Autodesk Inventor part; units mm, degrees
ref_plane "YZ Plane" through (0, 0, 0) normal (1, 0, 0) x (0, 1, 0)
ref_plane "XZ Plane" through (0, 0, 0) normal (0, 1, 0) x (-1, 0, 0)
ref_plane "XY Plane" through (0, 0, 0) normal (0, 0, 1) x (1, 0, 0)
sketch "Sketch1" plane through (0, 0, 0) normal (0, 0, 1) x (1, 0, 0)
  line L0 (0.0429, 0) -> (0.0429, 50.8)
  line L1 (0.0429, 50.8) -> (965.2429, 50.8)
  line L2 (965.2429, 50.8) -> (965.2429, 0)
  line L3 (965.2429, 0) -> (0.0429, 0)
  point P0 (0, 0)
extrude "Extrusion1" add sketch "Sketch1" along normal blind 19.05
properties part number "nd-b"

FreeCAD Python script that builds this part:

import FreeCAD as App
import Part
import Sketcher
Q = App.Units.Quantity

doc = App.newDocument("Part")
body = doc.addObject("PartDesign::Body", "Body")

# Sketch on XY plane
sketch1 = doc.addObject("Sketcher::SketchObject", "Sketch")
body.addObject(sketch1)
sketch1.AttachmentSupport = (doc.XY_Plane, [""])
sketch1.MapMode = "FlatFace"
sketch1.addGeometry(Part.LineSegment(App.Vector(0, 51, 0), App.Vector(0, 0, 0)), False)
sketch1.addGeometry(Part.LineSegment(App.Vector(0, 0, 0), App.Vector(965, 0, 0)), False)
sketch1.addGeometry(Part.LineSegment(App.Vector(965, 0, 0), App.Vector(965, 51, 0)), False)
sketch1.addGeometry(Part.LineSegment(App.Vector(965, 51, 0), App.Vector(0, 51, 0)), False)
sketch1.addConstraint(Sketcher.Constraint("Coincident", 0, 2, 1, 1))
sketch1.addConstraint(Sketcher.Constraint("Coincident", 1, 2, 2, 1))
sketch1.addConstraint(Sketcher.Constraint("Coincident", 2, 2, 3, 1))
sketch1.addConstraint(Sketcher.Constraint("Coincident", 3, 2, 0, 1))
sketch1.addConstraint(Sketcher.Constraint("Vertical", 0))
sketch1.addConstraint(Sketcher.Constraint("Horizontal", 1))
sketch1.addConstraint(Sketcher.Constraint("Vertical", 2))
sketch1.addConstraint(Sketcher.Constraint("Horizontal", 3))
sketch1.addConstraint(Sketcher.Constraint("PointOnObject", 0, 2, -1))
sketch1.addConstraint(Sketcher.Constraint("DistanceX", 1, 1, 1, 2, Q("38 in")))
sketch1.addConstraint(Sketcher.Constraint("DistanceY", 0, 2, 0, 1, Q("2 in")))
sketch1.addConstraint(Sketcher.Constraint("DistanceX", -1, 1, 0, 2, Q("0.0017 in")))
pad1 = doc.addObject("PartDesign::Pad", "Pad")
body.addObject(pad1)
pad1.Profile = sketch1
pad1.Length = Q("0.75 in")

doc.recompute()
